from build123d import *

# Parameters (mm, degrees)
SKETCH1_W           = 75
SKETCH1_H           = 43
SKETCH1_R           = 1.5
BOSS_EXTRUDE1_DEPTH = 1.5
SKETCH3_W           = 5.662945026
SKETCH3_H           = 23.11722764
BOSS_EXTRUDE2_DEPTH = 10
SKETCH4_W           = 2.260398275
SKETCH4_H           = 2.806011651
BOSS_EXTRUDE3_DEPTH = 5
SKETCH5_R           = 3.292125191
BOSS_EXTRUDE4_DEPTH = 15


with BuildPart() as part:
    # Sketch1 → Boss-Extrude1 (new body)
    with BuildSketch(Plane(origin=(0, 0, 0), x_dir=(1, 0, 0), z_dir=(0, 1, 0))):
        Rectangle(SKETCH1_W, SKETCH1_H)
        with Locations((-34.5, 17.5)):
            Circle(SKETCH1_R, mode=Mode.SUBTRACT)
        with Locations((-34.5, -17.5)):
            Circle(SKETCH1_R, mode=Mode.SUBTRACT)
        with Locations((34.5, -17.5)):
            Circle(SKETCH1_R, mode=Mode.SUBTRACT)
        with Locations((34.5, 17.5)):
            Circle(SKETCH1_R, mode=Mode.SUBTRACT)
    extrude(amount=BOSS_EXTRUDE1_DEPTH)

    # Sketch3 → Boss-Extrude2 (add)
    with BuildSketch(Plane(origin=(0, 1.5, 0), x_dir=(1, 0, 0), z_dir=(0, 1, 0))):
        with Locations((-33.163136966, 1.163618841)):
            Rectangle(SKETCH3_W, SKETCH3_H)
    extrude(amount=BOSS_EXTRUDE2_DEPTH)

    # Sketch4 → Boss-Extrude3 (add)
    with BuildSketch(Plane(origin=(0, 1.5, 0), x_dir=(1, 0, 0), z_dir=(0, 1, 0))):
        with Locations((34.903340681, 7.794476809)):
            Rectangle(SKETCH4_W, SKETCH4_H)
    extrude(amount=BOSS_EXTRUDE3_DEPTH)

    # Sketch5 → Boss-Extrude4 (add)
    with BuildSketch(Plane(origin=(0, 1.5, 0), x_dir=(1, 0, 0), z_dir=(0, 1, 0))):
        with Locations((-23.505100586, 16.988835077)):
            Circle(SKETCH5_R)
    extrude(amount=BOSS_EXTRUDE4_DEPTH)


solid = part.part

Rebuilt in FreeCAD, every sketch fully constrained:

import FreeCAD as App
import Part
import Sketcher

doc = App.newDocument("Part")
body = doc.addObject("PartDesign::Body", "Body")

sketch1 = body.newObject("Sketcher::SketchObject", "Sketch")
sketch1.AttachmentSupport = (doc.getObject("XZ_Plane"), [""])
sketch1.MapMode = "FlatFace"
sketch1.addGeometry([
    Part.LineSegment(App.Vector(-37.5, -21.5, 0), App.Vector(-37.5, 21.5, 0)),
    Part.LineSegment(App.Vector(-37.5, 21.5, 0), App.Vector(37.5, 21.5, 0)),
    Part.LineSegment(App.Vector(37.5, 21.5, 0), App.Vector(37.5, -21.5, 0)),
    Part.LineSegment(App.Vector(37.5, -21.5, 0), App.Vector(-37.5, -21.5, 0)),
    Part.Circle(App.Vector(-34.5, 17.5, 0), App.Vector(0, 0, 1), 1.5),
    Part.Circle(App.Vector(34.5, 17.5, 0), App.Vector(0, 0, 1), 1.5),
    Part.Circle(App.Vector(-34.5, -17.5, 0), App.Vector(0, 0, 1), 1.5),
    Part.Circle(App.Vector(34.5, -17.5, 0), App.Vector(0, 0, 1), 1.5),
], False)
sketch1.addConstraint([
    Sketcher.Constraint("Coincident", 0, 2, 1, 1),
    Sketcher.Constraint("Coincident", 1, 2, 2, 1),
    Sketcher.Constraint("Coincident", 2, 2, 3, 1),
    Sketcher.Constraint("Coincident", 3, 2, 0, 1),
    Sketcher.Constraint("Vertical", 0),
    Sketcher.Constraint("Horizontal", 1),
    Sketcher.Constraint("Vertical", 2),
    Sketcher.Constraint("Horizontal", 3),
    Sketcher.Constraint("Equal", 4, 5),
    Sketcher.Constraint("Equal", 5, 6),
    Sketcher.Constraint("Equal", 6, 7),
    Sketcher.Constraint("Symmetric", 5, 3, 6, 3, -1, 1),
    Sketcher.Constraint("Symmetric", 4, 3, 7, 3, -1, 1),
    Sketcher.Constraint("Symmetric", 0, 2, 2, 2, -1, 1),
    Sketcher.Constraint("Symmetric", 4, 3, 5, 3, -2),
    Sketcher.Constraint("Diameter", 4, 3.0),
    Sketcher.Constraint("DistanceX", 1, 1, 1, 2, 75.0),
    Sketcher.Constraint("DistanceY", 0, 1, 0, 2, 43.0),
    Sketcher.Constraint("DistanceX", 4, 3, 5, 3, 69.0),
    Sketcher.Constraint("DistanceY", 6, 3, 4, 3, 35.0),
])
pad1 = body.newObject("PartDesign::Pad", "Pad")
pad1.Profile = sketch1
pad1.Length = 1.5
pad1.Reversed = True

sketch2 = body.newObject("Sketcher::SketchObject", "Sketch001")
sketch2.AttachmentSupport = (doc.getObject("XZ_Plane"), [""])
sketch2.MapMode = "FlatFace"
sketch2.AttachmentOffset = App.Placement(App.Vector(0, 0, -1.5), App.Rotation())
sketch2.addGeometry([
    Part.LineSegment(App.Vector(-36, -13, 0), App.Vector(-36, 10, 0)),
    Part.LineSegment(App.Vector(-36, 10, 0), App.Vector(-30, 10, 0)),
    Part.LineSegment(App.Vector(-30, 10, 0), App.Vector(-30, -13, 0)),
    Part.LineSegment(App.Vector(-30, -13, 0), App.Vector(-36, -13, 0)),
], False)
sketch2.addConstraint([
    Sketcher.Constraint("Coincident", 0, 2, 1, 1),
    Sketcher.Constraint("Coincident", 1, 2, 2, 1),
    Sketcher.Constraint("Coincident", 2, 2, 3, 1),
    Sketcher.Constraint("Coincident", 3, 2, 0, 1),
    Sketcher.Constraint("Vertical", 0),
    Sketcher.Constraint("Horizontal", 1),
    Sketcher.Constraint("Vertical", 2),
    Sketcher.Constraint("Horizontal", 3),
    Sketcher.Constraint("DistanceX", 1, 1, 1, 2, 5.662945),
    Sketcher.Constraint("DistanceY", 0, 1, 0, 2, 23.117228),
    Sketcher.Constraint("DistanceX", 0, 2, -1, 1, 35.994609),
    Sketcher.Constraint("DistanceY", -1, 1, 0, 2, 10.394995),
])
pad2 = body.newObject("PartDesign::Pad", "Pad001")
pad2.Profile = sketch2
pad2.Length = 10
pad2.Reversed = True

sketch3 = body.newObject("Sketcher::SketchObject", "Sketch002")
sketch3.AttachmentSupport = (doc.getObject("XZ_Plane"), [""])
sketch3.MapMode = "FlatFace"
sketch3.AttachmentOffset = App.Placement(App.Vector(0, 0, -1.5), App.Rotation())
sketch3.addGeometry([
    Part.LineSegment(App.Vector(33.8, -9.2, 0), App.Vector(33.8, -6.4, 0)),
    Part.LineSegment(App.Vector(33.8, -6.4, 0), App.Vector(36, -6.4, 0)),
    Part.LineSegment(App.Vector(36, -6.4, 0), App.Vector(36, -9.2, 0)),
    Part.LineSegment(App.Vector(36, -9.2, 0), App.Vector(33.8, -9.2, 0)),
], False)
sketch3.addConstraint([
    Sketcher.Constraint("Coincident", 0, 2, 1, 1),
    Sketcher.Constraint("Coincident", 1, 2, 2, 1),
    Sketcher.Constraint("Coincident", 2, 2, 3, 1),
    Sketcher.Constraint("Coincident", 3, 2, 0, 1),
    Sketcher.Constraint("Vertical", 0),
    Sketcher.Constraint("Horizontal", 1),
    Sketcher.Constraint("Vertical", 2),
    Sketcher.Constraint("Horizontal", 3),
    Sketcher.Constraint("DistanceX", 1, 1, 1, 2, 2.260398),
    Sketcher.Constraint("DistanceY", 0, 1, 0, 2, 2.806012),
    Sketcher.Constraint("DistanceX", -1, 1, 0, 2, 33.773142),
    Sketcher.Constraint("DistanceY", 0, 2, -1, 1, 6.391471),
])
pad3 = body.newObject("PartDesign::Pad", "Pad002")
pad3.Profile = sketch3
pad3.Length = 5
pad3.Reversed = True

sketch4 = body.newObject("Sketcher::SketchObject", "Sketch003")
sketch4.AttachmentSupport = (doc.getObject("XZ_Plane"), [""])
sketch4.MapMode = "FlatFace"
sketch4.AttachmentOffset = App.Placement(App.Vector(0, 0, -1.5), App.Rotation())
sketch4.addGeometry(Part.Circle(App.Vector(-23.5, -17, 0), App.Vector(0, 0, 1), 3.3), False)
sketch4.addConstraint([
    Sketcher.Constraint("Diameter", 0, 6.58425),
    Sketcher.Constraint("DistanceX", 0, 3, -1, 1, 23.505101),
    Sketcher.Constraint("DistanceY", 0, 3, -1, 1, 16.988835),
])
pad4 = body.newObject("PartDesign::Pad", "Pad003")
pad4.Profile = sketch4
pad4.Length = 15
pad4.Reversed = True

doc.recompute()
